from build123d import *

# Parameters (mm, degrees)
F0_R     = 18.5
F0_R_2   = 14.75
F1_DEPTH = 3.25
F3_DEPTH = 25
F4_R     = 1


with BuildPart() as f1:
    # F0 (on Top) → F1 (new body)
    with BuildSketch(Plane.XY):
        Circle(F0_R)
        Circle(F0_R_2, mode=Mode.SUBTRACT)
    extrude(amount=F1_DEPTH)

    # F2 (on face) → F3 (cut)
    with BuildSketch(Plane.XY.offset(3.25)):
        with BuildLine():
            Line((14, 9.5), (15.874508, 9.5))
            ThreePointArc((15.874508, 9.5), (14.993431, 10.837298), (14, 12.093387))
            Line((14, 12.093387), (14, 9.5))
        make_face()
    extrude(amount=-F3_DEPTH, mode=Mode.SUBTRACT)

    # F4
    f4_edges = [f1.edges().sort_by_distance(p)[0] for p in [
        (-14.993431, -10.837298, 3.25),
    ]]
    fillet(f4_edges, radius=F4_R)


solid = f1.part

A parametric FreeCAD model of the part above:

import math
import FreeCAD as App
import Part
import Sketcher
from FreeCAD import Vector
Q = App.Units.Quantity


def edges_at(feature, points):
    """Names of the edges that pass closest to the given points."""
    edges = feature.Shape.Edges
    near = lambda p: min(range(len(edges)), key=lambda i: edges[i].distToShape(Part.Vertex(*p))[0])
    return sorted({f"Edge{near(p) + 1}" for p in points})

doc = App.newDocument("Part")
body = doc.addObject("PartDesign::Body", "Body")

# Sketch on XY plane
sketch1 = body.newObject("Sketcher::SketchObject", "Sketch")
sketch1.AttachmentSupport = (doc.getObject("XY_Plane"), [""])
sketch1.MapMode = "FlatFace"
sketch1.addGeometry([
    Part.Circle(Vector(0, 0, 0), Vector(0, 0, 1), 18),
    Part.Circle(Vector(0, 0, 0), Vector(0, 0, 1), 15),
], False)
sketch1.addConstraint([
    Sketcher.Constraint("Coincident", 0, 3, -1, 1),
    Sketcher.Constraint("Coincident", 1, 3, -1, 1),
    Sketcher.Constraint("Diameter", 0, Q("37 mm")),
    Sketcher.Constraint("Diameter", 1, Q("29.5 mm")),
])
pad1 = body.newObject("PartDesign::Pad", "Pad")
pad1.Profile = sketch1
pad1.Length = 3.25

# Sketch on XY plane
sketch2 = body.newObject("Sketcher::SketchObject", "Sketch001")
sketch2.AttachmentSupport = (doc.getObject("XY_Plane"), [""])
sketch2.MapMode = "FlatFace"
sketch2.AttachmentOffset = App.Placement(Vector(0, 0, 3.25), App.Rotation())
sketch2.addGeometry([
    Part.LineSegment(Vector(14, 9.5, 0), Vector(15.9, 9.5, 0)),
    Part.ArcOfCircle(Part.Circle(Vector(0, 0, 0), Vector(0, 0, 1), 18.5), math.radians(30.9), math.radians(40.82)),
    Part.LineSegment(Vector(14, 12.1, 0), Vector(14, 9.5, 0)),
], False)
sketch2.addConstraint([
    Sketcher.Constraint("Coincident", 0, 2, 1, 1),
    Sketcher.Constraint("Coincident", 1, 2, 2, 1),
    Sketcher.Constraint("Coincident", 2, 2, 0, 1),
    Sketcher.Constraint("Horizontal", 0),
    Sketcher.Constraint("Vertical", 2),
    Sketcher.Constraint("DistanceX", -1, 1, 1, 2, Q("14 mm")),
    Sketcher.Constraint("DistanceY", -1, 1, 0, 2, Q("9.5 mm")),
    Sketcher.Constraint("Radius", 1, Q("18.50004 mm")),
    Sketcher.Constraint("DistanceX", 0, 1, 0, 2, Q("1.874508 mm")),
    Sketcher.Constraint("DistanceY", 2, 2, 2, 1, Q("2.593387 mm")),
])
pocket1 = body.newObject("PartDesign::Pocket", "Pocket")
pocket1.Profile = sketch2
pocket1.Length = 25
doc.recompute()

fillet = body.newObject("PartDesign::Fillet", "Fillet")
fillet.Base = (pocket1, edges_at(pocket1, [(-14.993, -10.837, 3.25)]))
fillet.Radius = 1

doc.recompute()
